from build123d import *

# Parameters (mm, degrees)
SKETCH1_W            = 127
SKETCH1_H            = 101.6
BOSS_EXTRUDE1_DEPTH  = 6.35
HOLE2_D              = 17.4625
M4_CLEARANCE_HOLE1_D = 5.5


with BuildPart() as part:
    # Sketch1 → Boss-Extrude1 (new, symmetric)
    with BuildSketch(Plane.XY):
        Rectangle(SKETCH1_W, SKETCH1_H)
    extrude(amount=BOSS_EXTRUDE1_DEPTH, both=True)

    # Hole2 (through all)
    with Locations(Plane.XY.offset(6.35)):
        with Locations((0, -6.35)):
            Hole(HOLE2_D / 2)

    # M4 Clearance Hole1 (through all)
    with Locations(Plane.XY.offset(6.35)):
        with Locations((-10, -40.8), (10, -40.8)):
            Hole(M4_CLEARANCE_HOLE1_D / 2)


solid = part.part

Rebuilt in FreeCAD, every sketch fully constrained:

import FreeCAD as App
import Part
import Sketcher

V = App.Vector
Q = App.Units.Quantity

doc = App.newDocument("Part")
body = doc.addObject("PartDesign::Body", "Body")

# Sketch on XY plane
sketch1 = body.newObject("Sketcher::SketchObject", "Sketch")
sketch1.AttachmentSupport = (doc.getObject("XY_Plane"), [""])
sketch1.MapMode = "FlatFace"
sketch1.addGeometry([
    Part.LineSegment(V(-63.5, 50.8, 0), V(-63.5, -50.8, 0)),
    Part.LineSegment(V(-63.5, -50.8, 0), V(63.5, -50.8, 0)),
    Part.LineSegment(V(63.5, -50.8, 0), V(63.5, 50.8, 0)),
    Part.LineSegment(V(63.5, 50.8, 0), V(-63.5, 50.8, 0)),
], False)
sketch1.addConstraint([
    Sketcher.Constraint("Coincident", 0, 2, 1, 1),
    Sketcher.Constraint("Coincident", 1, 2, 2, 1),
    Sketcher.Constraint("Coincident", 2, 2, 3, 1),
    Sketcher.Constraint("Coincident", 3, 2, 0, 1),
    Sketcher.Constraint("Vertical", 0),
    Sketcher.Constraint("Horizontal", 1),
    Sketcher.Constraint("Vertical", 2),
    Sketcher.Constraint("Horizontal", 3),
    Sketcher.Constraint("Symmetric", 0, 2, 2, 2, -1, 1),
    Sketcher.Constraint("DistanceX", 1, 1, 1, 2, Q("5 in")),
    Sketcher.Constraint("DistanceY", 0, 2, 0, 1, Q("4 in")),
])
pad1 = body.newObject("PartDesign::Pad", "Pad")
pad1.Profile = sketch1
pad1.Length = Q("0.5 in")
pad1.Midplane = True

# Sketch on XY plane
sketch2 = body.newObject("Sketcher::SketchObject", "Sketch001")
sketch2.AttachmentSupport = (doc.getObject("XY_Plane"), [""])
sketch2.MapMode = "FlatFace"
sketch2.AttachmentOffset = App.Placement(V(0, 0, 0.25 * 25.4), App.Rotation())
sketch2.addGeometry(Part.Circle(V(0, -6.35, 0), V(0, 0, 1), 8.73125), False)
sketch2.addConstraint([
    Sketcher.Constraint("PointOnObject", 0, 3, -2),
    Sketcher.Constraint("Diameter", 0, Q("0.6875 in")),
    Sketcher.Constraint("DistanceY", 0, 3, -1, 1, Q("0.25 in")),
])
doc.recompute()
hole = body.newObject("PartDesign::Hole", "Hole")
hole.Profile = sketch2
hole.ThreadType = "None"
hole.Diameter = Q("0.6875 in")
hole.DepthType = "ThroughAll"

# Sketch on XY plane
sketch3 = body.newObject("Sketcher::SketchObject", "Sketch002")
sketch3.AttachmentSupport = (doc.getObject("XY_Plane"), [""])
sketch3.MapMode = "FlatFace"
sketch3.AttachmentOffset = App.Placement(V(0, 0, 0.25 * 25.4), App.Rotation())
sketch3.addGeometry([
    Part.Circle(V(-10, -40.8, 0), V(0, 0, 1), 2.75),
    Part.Circle(V(10, -40.8, 0), V(0, 0, 1), 2.75),
], False)
sketch3.addConstraint([
    Sketcher.Constraint("Equal", 0, 1),
    Sketcher.Constraint("Symmetric", 0, 3, 1, 3, -2),
    Sketcher.Constraint("Diameter", 0, Q("5.5 mm")),
    Sketcher.Constraint("DistanceX", 0, 3, -1, 1, Q("10 mm")),
    Sketcher.Constraint("DistanceY", 0, 3, -1, 1, Q("40.8 mm")),
])
doc.recompute()
hole2 = body.newObject("PartDesign::Hole", "Hole001")
hole2.Profile = sketch3
hole2.ThreadType = "None"
hole2.Diameter = 5.5
hole2.DepthType = "ThroughAll"

doc.recompute()
